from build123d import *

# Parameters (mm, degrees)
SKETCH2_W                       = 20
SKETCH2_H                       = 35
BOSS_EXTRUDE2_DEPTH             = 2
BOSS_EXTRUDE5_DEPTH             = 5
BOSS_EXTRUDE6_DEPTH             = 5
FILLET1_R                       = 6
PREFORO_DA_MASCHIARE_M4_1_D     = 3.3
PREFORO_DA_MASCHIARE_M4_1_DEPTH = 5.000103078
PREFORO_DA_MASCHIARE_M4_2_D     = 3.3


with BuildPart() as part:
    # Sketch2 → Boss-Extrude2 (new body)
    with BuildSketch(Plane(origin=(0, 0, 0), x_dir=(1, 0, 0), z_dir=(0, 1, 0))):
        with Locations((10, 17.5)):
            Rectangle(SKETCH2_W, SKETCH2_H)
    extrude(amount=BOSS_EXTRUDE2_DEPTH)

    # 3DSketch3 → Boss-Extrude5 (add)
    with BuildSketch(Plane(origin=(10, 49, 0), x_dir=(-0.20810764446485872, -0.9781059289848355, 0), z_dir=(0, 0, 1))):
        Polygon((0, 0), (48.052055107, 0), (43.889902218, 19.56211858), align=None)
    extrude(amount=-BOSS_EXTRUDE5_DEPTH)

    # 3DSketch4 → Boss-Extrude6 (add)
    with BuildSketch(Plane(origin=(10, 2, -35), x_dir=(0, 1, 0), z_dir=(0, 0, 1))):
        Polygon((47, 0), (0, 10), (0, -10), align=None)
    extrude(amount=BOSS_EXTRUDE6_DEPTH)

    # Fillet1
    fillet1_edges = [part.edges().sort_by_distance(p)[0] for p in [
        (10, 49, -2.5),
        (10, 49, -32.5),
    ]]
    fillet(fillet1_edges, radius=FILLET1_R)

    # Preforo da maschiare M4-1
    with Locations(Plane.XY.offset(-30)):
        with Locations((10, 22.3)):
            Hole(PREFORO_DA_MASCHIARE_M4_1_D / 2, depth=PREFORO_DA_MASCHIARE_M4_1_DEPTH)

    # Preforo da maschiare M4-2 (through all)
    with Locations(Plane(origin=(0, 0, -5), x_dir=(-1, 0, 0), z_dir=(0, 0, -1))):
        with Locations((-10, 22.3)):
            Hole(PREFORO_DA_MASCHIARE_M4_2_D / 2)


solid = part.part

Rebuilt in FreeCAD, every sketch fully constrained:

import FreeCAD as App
import Part
import Sketcher
Q = App.Units.Quantity


def edges_at(feature, points):
    """Names of the edges that pass closest to the given points."""
    edges = feature.Shape.Edges
    near = lambda p: min(range(len(edges)), key=lambda i: edges[i].distToShape(Part.Vertex(*p))[0])
    return sorted({f"Edge{near(p) + 1}" for p in points})


def add_polygon(sketch, points):
    """Adds a closed chain of lines whose ends are joined by coincident constraints."""
    first, n = sketch.GeometryCount, len(points)
    for a, b in zip(points, points[1:] + points[:1]):
        sketch.addGeometry(Part.LineSegment(App.Vector(*a, 0), App.Vector(*b, 0)), False)
    for i in range(n):
        sketch.addConstraint(Sketcher.Constraint("Coincident", first + i, 2, first + (i + 1) % n, 1))

doc = App.newDocument("Part")
params = doc.addObject("Spreadsheet::Sheet", "Params")
for row, (alias, value) in enumerate([
    ("sketch1_width", "20 mm"),
    ("sketch1_height", "35 mm"),
    ("pad1_length", "2 mm"),
    ("sketch2_width", "20 mm"),
    ("pad2_length", "5 mm"),
    ("sketch3_width", "20 mm"),
    ("pad3_length", "5 mm"),
    ("fillet_radius", "6 mm"),
    ("sketch4_diameter", "3.3 mm"),
    ("hole_diameter", "3.3 mm"),
    ("hole_depth", "5.000103 mm"),
    ("sketch5_diameter", "3.3 mm"),
    ("hole2_diameter", "3.3 mm"),
], start=1):
    params.set(f"A{row}", alias)
    params.set(f"B{row}", "=" + value)
    params.setAlias(f"B{row}", alias)

body = doc.addObject("PartDesign::Body", "Body")

sketch1 = body.newObject("Sketcher::SketchObject", "Sketch")
sketch1.AttachmentSupport = (doc.getObject("XZ_Plane"), [""])
sketch1.MapMode = "FlatFace"
add_polygon(sketch1, [(0, -35), (0, 0), (20, 0), (20, -35)])
sketch1.addConstraint(Sketcher.Constraint("Vertical", 0))
sketch1.addConstraint(Sketcher.Constraint("Horizontal", 1))
sketch1.addConstraint(Sketcher.Constraint("Vertical", 2))
sketch1.addConstraint(Sketcher.Constraint("Horizontal", 3))
sketch1.addConstraint(Sketcher.Constraint("Coincident", 0, 2, -1, 1))
sketch1.addConstraint(Sketcher.Constraint("DistanceX", 1, 1, 1, 2, Q("20 mm")))
sketch1.addConstraint(Sketcher.Constraint("DistanceY", 0, 1, 0, 2, Q("35 mm")))
sketch1.setExpression("Constraints[9]", "Params.sketch1_width")
sketch1.setExpression("Constraints[10]", "Params.sketch1_height")
pad1 = body.newObject("PartDesign::Pad", "Pad")
pad1.Profile = sketch1
pad1.setExpression("Length", "Params.pad1_length")
pad1.Reversed = True

sketch2 = body.newObject("Sketcher::SketchObject", "Sketch001")
sketch2.AttachmentSupport = (doc.getObject("XY_Plane"), [""])
sketch2.MapMode = "FlatFace"
add_polygon(sketch2, [(10, 49), (0, 2), (20, 2)])
sketch2.addConstraint(Sketcher.Constraint("Horizontal", 1))
sketch2.addConstraint(Sketcher.Constraint("PointOnObject", 0, 2, -2))
sketch2.addConstraint(Sketcher.Constraint("Equal", 0, 2))
sketch2.addConstraint(Sketcher.Constraint("DistanceX", 1, 1, 1, 2, Q("20 mm")))
sketch2.addConstraint(Sketcher.Constraint("DistanceY", -1, 1, 0, 2, Q("2 mm")))
sketch2.addConstraint(Sketcher.Constraint("DistanceY", -1, 1, 2, 2, Q("49 mm")))
sketch2.setExpression("Constraints[6]", "Params.sketch2_width")
pad2 = body.newObject("PartDesign::Pad", "Pad001")
pad2.Profile = sketch2
pad2.setExpression("Length", "Params.pad2_length")
pad2.Reversed = True

sketch3 = body.newObject("Sketcher::SketchObject", "Sketch002")
sketch3.AttachmentSupport = (doc.getObject("XY_Plane"), [""])
sketch3.MapMode = "FlatFace"
sketch3.AttachmentOffset = App.Placement(App.Vector(0, 0, -35), App.Rotation())
add_polygon(sketch3, [(10, 49), (0, 2), (20, 2)])
sketch3.addConstraint(Sketcher.Constraint("Horizontal", 1))
sketch3.addConstraint(Sketcher.Constraint("PointOnObject", 0, 2, -2))
sketch3.addConstraint(Sketcher.Constraint("Equal", 0, 2))
sketch3.addConstraint(Sketcher.Constraint("DistanceX", 1, 1, 1, 2, Q("20 mm")))
sketch3.addConstraint(Sketcher.Constraint("DistanceY", -1, 1, 0, 2, Q("2 mm")))
sketch3.addConstraint(Sketcher.Constraint("DistanceY", -1, 1, 2, 2, Q("49 mm")))
sketch3.setExpression("Constraints[6]", "Params.sketch3_width")
pad3 = body.newObject("PartDesign::Pad", "Pad002")
pad3.Profile = sketch3
pad3.setExpression("Length", "Params.pad3_length")
doc.recompute()

fillet = body.newObject("PartDesign::Fillet", "Fillet")
fillet.Base = (pad3, edges_at(pad3, [(10, 49, -2.5), (10, 49, -32.5)]))
fillet.setExpression("Radius", "Params.fillet_radius")

sketch4 = body.newObject("Sketcher::SketchObject", "Sketch003")
sketch4.AttachmentSupport = (doc.getObject("XY_Plane"), [""])
sketch4.MapMode = "FlatFace"
sketch4.AttachmentOffset = App.Placement(App.Vector(0, 0, -30), App.Rotation())
sketch4.addGeometry(Part.Circle(App.Vector(10, 22.3, 0), App.Vector(0, 0, 1), 1.6), False)
sketch4.addConstraint(Sketcher.Constraint("Diameter", 0, Q("3.3 mm")))
sketch4.addConstraint(Sketcher.Constraint("DistanceX", -1, 1, 0, 3, Q("10 mm")))
sketch4.addConstraint(Sketcher.Constraint("DistanceY", -1, 1, 0, 3, Q("22.3 mm")))
sketch4.setExpression("Constraints[0]", "Params.sketch4_diameter")
doc.recompute()
hole = body.newObject("PartDesign::Hole", "Hole")
hole.Profile = sketch4
hole.ThreadType = "None"
hole.setExpression("Diameter", "Params.hole_diameter")
hole.DepthType = "Dimension"
hole.setExpression("Depth", "Params.hole_depth")
hole.DrillPoint = "Flat"

sketch5 = body.newObject("Sketcher::SketchObject", "Sketch004")
sketch5.AttachmentSupport = (doc.getObject("XY_Plane"), [""])
sketch5.MapMode = "FlatFace"
sketch5.AttachmentOffset = App.Placement(App.Vector(0, 0, -5), App.Rotation())
sketch5.addGeometry(Part.Circle(App.Vector(10, 22.3, 0), App.Vector(0, 0, 1), 1.6), False)
sketch5.addConstraint(Sketcher.Constraint("Diameter", 0, Q("3.3 mm")))
sketch5.addConstraint(Sketcher.Constraint("DistanceX", -1, 1, 0, 3, Q("10 mm")))
sketch5.addConstraint(Sketcher.Constraint("DistanceY", -1, 1, 0, 3, Q("22.3 mm")))
sketch5.setExpression("Constraints[0]", "Params.sketch5_diameter")
doc.recompute()
hole2 = body.newObject("PartDesign::Hole", "Hole001")
hole2.Profile = sketch5
hole2.ThreadType = "None"
hole2.setExpression("Diameter", "Params.hole2_diameter")
hole2.DepthType = "ThroughAll"
hole2.Reversed = True

doc.recompute()
